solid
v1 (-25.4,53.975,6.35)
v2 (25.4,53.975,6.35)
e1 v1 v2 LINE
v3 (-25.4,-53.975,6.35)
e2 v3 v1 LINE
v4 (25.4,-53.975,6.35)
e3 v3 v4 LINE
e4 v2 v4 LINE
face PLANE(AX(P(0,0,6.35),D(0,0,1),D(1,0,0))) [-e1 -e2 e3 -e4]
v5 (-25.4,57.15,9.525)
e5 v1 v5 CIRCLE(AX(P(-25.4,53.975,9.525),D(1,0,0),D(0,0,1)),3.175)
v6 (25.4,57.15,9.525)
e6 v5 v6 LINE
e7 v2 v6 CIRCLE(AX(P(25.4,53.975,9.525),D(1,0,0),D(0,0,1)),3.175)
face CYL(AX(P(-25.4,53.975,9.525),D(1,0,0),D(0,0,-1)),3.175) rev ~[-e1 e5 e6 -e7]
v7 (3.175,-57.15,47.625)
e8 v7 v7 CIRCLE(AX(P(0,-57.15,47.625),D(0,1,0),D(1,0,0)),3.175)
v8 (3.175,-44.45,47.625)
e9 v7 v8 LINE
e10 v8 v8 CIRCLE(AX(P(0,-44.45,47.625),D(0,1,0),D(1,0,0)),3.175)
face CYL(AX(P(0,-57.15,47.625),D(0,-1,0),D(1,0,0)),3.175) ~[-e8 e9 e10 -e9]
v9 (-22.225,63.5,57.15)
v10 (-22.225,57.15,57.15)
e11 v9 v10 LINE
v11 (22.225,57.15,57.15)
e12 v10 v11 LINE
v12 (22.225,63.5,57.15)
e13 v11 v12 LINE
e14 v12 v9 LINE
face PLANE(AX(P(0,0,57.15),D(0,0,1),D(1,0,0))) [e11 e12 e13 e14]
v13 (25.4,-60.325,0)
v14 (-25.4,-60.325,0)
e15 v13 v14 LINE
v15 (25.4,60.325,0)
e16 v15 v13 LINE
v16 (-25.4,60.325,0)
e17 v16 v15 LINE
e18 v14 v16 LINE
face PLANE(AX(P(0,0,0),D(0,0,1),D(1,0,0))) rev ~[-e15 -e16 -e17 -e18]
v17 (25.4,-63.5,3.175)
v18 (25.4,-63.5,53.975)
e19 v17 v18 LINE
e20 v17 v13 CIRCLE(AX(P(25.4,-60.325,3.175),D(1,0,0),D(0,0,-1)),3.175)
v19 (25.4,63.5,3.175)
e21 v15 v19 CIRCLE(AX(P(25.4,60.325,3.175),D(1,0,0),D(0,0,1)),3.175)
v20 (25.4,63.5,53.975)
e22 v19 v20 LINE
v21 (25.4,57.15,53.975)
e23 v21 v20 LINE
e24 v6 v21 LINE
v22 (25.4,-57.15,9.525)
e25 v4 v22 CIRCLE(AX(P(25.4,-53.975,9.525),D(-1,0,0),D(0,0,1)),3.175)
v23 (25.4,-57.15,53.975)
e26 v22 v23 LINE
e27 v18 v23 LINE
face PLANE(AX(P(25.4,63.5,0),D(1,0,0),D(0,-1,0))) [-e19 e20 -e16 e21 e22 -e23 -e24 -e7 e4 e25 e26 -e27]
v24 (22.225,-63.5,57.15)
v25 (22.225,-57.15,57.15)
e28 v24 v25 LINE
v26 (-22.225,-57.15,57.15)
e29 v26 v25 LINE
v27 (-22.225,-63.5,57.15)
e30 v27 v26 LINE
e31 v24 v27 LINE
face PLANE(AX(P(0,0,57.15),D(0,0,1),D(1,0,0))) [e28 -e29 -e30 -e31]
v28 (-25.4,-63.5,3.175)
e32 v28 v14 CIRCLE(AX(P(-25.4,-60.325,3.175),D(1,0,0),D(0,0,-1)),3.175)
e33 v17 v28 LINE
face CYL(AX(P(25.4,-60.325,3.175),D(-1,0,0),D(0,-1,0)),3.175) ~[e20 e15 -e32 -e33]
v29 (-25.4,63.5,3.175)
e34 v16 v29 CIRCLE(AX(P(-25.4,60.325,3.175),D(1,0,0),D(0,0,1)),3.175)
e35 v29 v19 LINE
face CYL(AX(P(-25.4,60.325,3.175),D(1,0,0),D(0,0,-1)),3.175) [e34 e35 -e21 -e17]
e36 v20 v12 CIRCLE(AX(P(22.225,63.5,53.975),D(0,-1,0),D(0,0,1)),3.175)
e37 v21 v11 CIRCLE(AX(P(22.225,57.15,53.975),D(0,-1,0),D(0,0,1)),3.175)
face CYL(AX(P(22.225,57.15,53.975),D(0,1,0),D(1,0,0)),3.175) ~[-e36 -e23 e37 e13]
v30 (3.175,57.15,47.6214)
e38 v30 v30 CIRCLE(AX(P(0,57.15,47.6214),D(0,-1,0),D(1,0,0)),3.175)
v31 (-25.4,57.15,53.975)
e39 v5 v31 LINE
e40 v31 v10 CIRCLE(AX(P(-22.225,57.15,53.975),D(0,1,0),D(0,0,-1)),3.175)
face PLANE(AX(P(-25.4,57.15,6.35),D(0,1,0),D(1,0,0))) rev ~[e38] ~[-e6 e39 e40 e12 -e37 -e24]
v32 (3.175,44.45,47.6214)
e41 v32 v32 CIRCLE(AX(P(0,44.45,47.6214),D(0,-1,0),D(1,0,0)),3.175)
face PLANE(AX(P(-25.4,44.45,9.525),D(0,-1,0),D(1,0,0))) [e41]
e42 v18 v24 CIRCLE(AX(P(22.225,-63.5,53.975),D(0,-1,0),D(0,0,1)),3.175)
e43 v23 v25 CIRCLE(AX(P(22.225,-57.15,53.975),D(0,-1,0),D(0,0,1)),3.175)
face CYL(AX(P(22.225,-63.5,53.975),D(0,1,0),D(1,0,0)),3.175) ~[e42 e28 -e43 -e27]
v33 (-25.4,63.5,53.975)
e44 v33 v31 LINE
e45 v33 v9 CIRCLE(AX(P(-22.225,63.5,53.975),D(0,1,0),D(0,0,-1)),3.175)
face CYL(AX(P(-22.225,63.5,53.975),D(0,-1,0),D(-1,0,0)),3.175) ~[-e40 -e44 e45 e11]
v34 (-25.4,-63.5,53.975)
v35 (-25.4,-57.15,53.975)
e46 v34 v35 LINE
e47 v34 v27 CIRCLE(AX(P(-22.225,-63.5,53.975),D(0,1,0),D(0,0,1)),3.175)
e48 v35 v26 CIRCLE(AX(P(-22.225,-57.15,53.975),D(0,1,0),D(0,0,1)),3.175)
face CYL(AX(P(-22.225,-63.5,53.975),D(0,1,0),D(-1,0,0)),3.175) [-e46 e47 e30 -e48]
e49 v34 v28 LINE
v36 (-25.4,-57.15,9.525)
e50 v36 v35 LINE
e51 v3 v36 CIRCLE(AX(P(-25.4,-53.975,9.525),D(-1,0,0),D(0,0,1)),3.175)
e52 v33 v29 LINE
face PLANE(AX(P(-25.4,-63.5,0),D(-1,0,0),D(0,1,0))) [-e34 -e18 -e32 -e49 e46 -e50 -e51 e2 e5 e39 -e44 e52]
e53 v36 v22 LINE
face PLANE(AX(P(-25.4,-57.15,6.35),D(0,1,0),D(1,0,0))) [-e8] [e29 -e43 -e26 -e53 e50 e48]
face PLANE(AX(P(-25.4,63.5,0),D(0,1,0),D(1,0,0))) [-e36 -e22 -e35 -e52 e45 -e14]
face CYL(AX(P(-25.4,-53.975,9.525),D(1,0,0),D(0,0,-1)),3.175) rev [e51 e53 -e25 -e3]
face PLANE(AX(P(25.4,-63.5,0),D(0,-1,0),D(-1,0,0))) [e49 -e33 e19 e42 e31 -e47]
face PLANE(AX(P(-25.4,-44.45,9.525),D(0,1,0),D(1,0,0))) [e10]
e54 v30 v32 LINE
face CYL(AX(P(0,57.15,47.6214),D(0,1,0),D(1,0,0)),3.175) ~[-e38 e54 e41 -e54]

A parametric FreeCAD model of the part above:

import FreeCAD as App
import Part
import Sketcher
from FreeCAD import Vector
Q = App.Units.Quantity


def edges_at(feature, points):
    """Names of the edges that pass closest to the given points."""
    edges = feature.Shape.Edges
    near = lambda p: min(range(len(edges)), key=lambda i: edges[i].distToShape(Part.Vertex(*p))[0])
    return sorted({f"Edge{near(p) + 1}" for p in points})

doc = App.newDocument("Part")
body = doc.addObject("PartDesign::Body", "Body")

# Sketch on XY plane
sketch1 = body.newObject("Sketcher::SketchObject", "Sketch")
sketch1.AttachmentSupport = (doc.getObject("XY_Plane"), [""])
sketch1.MapMode = "FlatFace"
sketch1.addGeometry([
    Part.LineSegment(Vector(-25, -64, 0), Vector(25, -64, 0)),
    Part.LineSegment(Vector(25, -64, 0), Vector(25, 64, 0)),
    Part.LineSegment(Vector(25, 64, 0), Vector(-25, 64, 0)),
    Part.LineSegment(Vector(-25, 64, 0), Vector(-25, -64, 0)),
], False)
sketch1.addConstraint([
    Sketcher.Constraint("Coincident", 0, 2, 1, 1),
    Sketcher.Constraint("Coincident", 1, 2, 2, 1),
    Sketcher.Constraint("Coincident", 2, 2, 3, 1),
    Sketcher.Constraint("Coincident", 3, 2, 0, 1),
    Sketcher.Constraint("Horizontal", 0),
    Sketcher.Constraint("Vertical", 1),
    Sketcher.Constraint("Horizontal", 2),
    Sketcher.Constraint("Vertical", 3),
    Sketcher.Constraint("Symmetric", 0, 2, 2, 2, -1, 1),
    Sketcher.Constraint("DistanceX", 0, 1, 0, 2, Q("2 in")),
    Sketcher.Constraint("DistanceY", 1, 1, 1, 2, Q("5 in")),
])
pad1 = body.newObject("PartDesign::Pad", "Pad")
pad1.Profile = sketch1
pad1.Length = Q("0.25 in")

# Sketch on XY plane
sketch2 = body.newObject("Sketcher::SketchObject", "Sketch001")
sketch2.AttachmentSupport = (doc.getObject("XY_Plane"), [""])
sketch2.MapMode = "FlatFace"
sketch2.AttachmentOffset = App.Placement(Vector(0, 0, 0.25 * 25.4), App.Rotation())
sketch2.addGeometry([
    Part.LineSegment(Vector(-25, -64, 0), Vector(25, -64, 0)),  # 0
    Part.LineSegment(Vector(25, -64, 0), Vector(25, -57, 0)),  # 1
    Part.LineSegment(Vector(25, -57, 0), Vector(-25, -57, 0)),  # 2
    Part.LineSegment(Vector(-25, -57, 0), Vector(-25, -64, 0)),  # 3
    Part.LineSegment(Vector(-25, 57, 0), Vector(25, 57, 0)),  # 4
    Part.LineSegment(Vector(25, 57, 0), Vector(25, 64, 0)),  # 5
    Part.LineSegment(Vector(25, 64, 0), Vector(-25, 64, 0)),  # 6
    Part.LineSegment(Vector(-25, 64, 0), Vector(-25, 57, 0)),  # 7
], False)
sketch2.addConstraint([
    Sketcher.Constraint("Coincident", 0, 2, 1, 1),
    Sketcher.Constraint("Coincident", 1, 2, 2, 1),
    Sketcher.Constraint("Coincident", 2, 2, 3, 1),
    Sketcher.Constraint("Coincident", 3, 2, 0, 1),
    Sketcher.Constraint("Coincident", 4, 2, 5, 1),
    Sketcher.Constraint("Coincident", 5, 2, 6, 1),
    Sketcher.Constraint("Coincident", 6, 2, 7, 1),
    Sketcher.Constraint("Coincident", 7, 2, 4, 1),
    Sketcher.Constraint("Horizontal", 0),
    Sketcher.Constraint("Vertical", 1),
    Sketcher.Constraint("Horizontal", 2),
    Sketcher.Constraint("Vertical", 3),
    Sketcher.Constraint("Horizontal", 4),
    Sketcher.Constraint("Vertical", 5),
    Sketcher.Constraint("Horizontal", 6),
    Sketcher.Constraint("Vertical", 7),
    Sketcher.Constraint("Symmetric", 2, 2, 4, 2, -1, 1),
    Sketcher.Constraint("Symmetric", 0, 2, 6, 2, -1, 1),
    Sketcher.Constraint("Vertical", 1, 2, 4, 2),
    Sketcher.Constraint("DistanceX", 0, 1, 0, 2, Q("2 in")),
    Sketcher.Constraint("DistanceY", 1, 1, 1, 2, Q("0.25 in")),
    Sketcher.Constraint("DistanceY", 0, 2, 5, 2, Q("5 in")),
])
pad2 = body.newObject("PartDesign::Pad", "Pad001")
pad2.Profile = sketch2
pad2.Length = Q("2 in")
doc.recompute()

fillet = body.newObject("PartDesign::Fillet", "Fillet")
fillet.Base = (pad2, edges_at(pad2, [
    (-25.4, 60.325, 57.15),
    (25.4, 60.325, 57.15),
    (-25.4, -60.325, 57.15),
    (25.4, -60.325, 57.15),
    (0, -63.5, 0),
    (0, 63.5, 0),
    (0, 57.15, 6.35),
    (0, -57.15, 6.35),
]))
fillet.Radius = Q("0.125 in")

# Sketch on XZ plane
sketch3 = body.newObject("Sketcher::SketchObject", "Sketch002")
sketch3.AttachmentSupport = (doc.getObject("XZ_Plane"), [""])
sketch3.MapMode = "FlatFace"
sketch3.AttachmentOffset = App.Placement(Vector(0, 0, -2.25 * 25.4), App.Rotation())
sketch3.addGeometry(Part.Circle(Vector(0, 47.6, 0), Vector(0, 0, 1), 3.2), False)
sketch3.addConstraint([
    Sketcher.Constraint("PointOnObject", 0, 3, -2),
    Sketcher.Constraint("Diameter", 0, Q("0.25 in")),
    Sketcher.Constraint("DistanceY", -1, 1, 0, 3, 47.6214),
])
pad3 = body.newObject("PartDesign::Pad", "Pad002")
pad3.Profile = sketch3
pad3.Length = Q("0.5 in")

# Sketch on XZ plane
sketch4 = body.newObject("Sketcher::SketchObject", "Sketch003")
sketch4.AttachmentSupport = (doc.getObject("XZ_Plane"), [""])
sketch4.MapMode = "FlatFace"
sketch4.AttachmentOffset = App.Placement(Vector(0, 0, 2.25 * 25.4), App.Rotation())
sketch4.addGeometry(Part.Circle(Vector(0, 47.6, 0), Vector(0, 0, 1), 3.2), False)
sketch4.addConstraint([
    Sketcher.Constraint("PointOnObject", 0, 3, -2),
    Sketcher.Constraint("Diameter", 0, Q("0.25 in")),
    Sketcher.Constraint("DistanceY", -1, 1, 0, 3, Q("1.875 in")),
])
pad4 = body.newObject("PartDesign::Pad", "Pad003")
pad4.Profile = sketch4
pad4.Length = Q("0.5 in")
pad4.Reversed = True

doc.recompute()
